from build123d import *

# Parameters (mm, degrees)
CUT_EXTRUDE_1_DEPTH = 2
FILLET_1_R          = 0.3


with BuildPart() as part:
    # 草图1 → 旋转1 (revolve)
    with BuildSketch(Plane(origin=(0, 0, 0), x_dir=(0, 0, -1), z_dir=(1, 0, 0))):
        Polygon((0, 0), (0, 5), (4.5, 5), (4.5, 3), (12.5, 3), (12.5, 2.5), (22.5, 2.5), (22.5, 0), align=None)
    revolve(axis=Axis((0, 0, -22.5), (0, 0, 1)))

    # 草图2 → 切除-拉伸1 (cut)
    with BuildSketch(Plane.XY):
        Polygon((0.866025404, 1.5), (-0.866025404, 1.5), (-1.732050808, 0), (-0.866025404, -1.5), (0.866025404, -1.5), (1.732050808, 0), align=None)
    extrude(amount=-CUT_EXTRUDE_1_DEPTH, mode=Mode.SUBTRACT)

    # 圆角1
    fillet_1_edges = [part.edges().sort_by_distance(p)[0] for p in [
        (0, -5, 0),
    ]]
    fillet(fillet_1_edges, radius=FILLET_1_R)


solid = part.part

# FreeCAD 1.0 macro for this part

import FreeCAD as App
import Part
import Sketcher
Q = App.Units.Quantity


def edges_at(feature, points):
    """Names of the edges that pass closest to the given points."""
    edges = feature.Shape.Edges
    near = lambda p: min(range(len(edges)), key=lambda i: edges[i].distToShape(Part.Vertex(*p))[0])
    return sorted({f"Edge{near(p) + 1}" for p in points})

doc = App.newDocument("Part")
body = doc.addObject("PartDesign::Body", "Body")

# Sketch on YZ plane
sketch1 = body.newObject("Sketcher::SketchObject", "Sketch")
sketch1.AttachmentSupport = (doc.getObject("YZ_Plane"), [""])
sketch1.MapMode = "FlatFace"
sketch1.addGeometry([
    Part.LineSegment(App.Vector(5, 0, 0), App.Vector(0, 0, 0)),  # 0
    Part.LineSegment(App.Vector(0, 0, 0), App.Vector(0, -22.5, 0)),  # 1
    Part.LineSegment(App.Vector(0, -22.5, 0), App.Vector(2.5, -22.5, 0)),  # 2
    Part.LineSegment(App.Vector(2.5, -22.5, 0), App.Vector(2.5, -12.5, 0)),  # 3
    Part.LineSegment(App.Vector(2.5, -12.5, 0), App.Vector(3, -12.5, 0)),  # 4
    Part.LineSegment(App.Vector(3, -12.5, 0), App.Vector(3, -4.5, 0)),  # 5
    Part.LineSegment(App.Vector(3, -4.5, 0), App.Vector(5, -4.5, 0)),  # 6
    Part.LineSegment(App.Vector(5, -4.5, 0), App.Vector(5, 0, 0)),  # 7
], False)
sketch1.addConstraint([
    Sketcher.Constraint("Coincident", 0, 2, 1, 1),
    Sketcher.Constraint("Coincident", 1, 2, 2, 1),
    Sketcher.Constraint("Coincident", 2, 2, 3, 1),
    Sketcher.Constraint("Coincident", 3, 2, 4, 1),
    Sketcher.Constraint("Coincident", 4, 2, 5, 1),
    Sketcher.Constraint("Coincident", 5, 2, 6, 1),
    Sketcher.Constraint("Coincident", 6, 2, 7, 1),
    Sketcher.Constraint("Coincident", 7, 2, 0, 1),
    Sketcher.Constraint("Horizontal", 0),
    Sketcher.Constraint("Vertical", 1),
    Sketcher.Constraint("Horizontal", 2),
    Sketcher.Constraint("Vertical", 3),
    Sketcher.Constraint("Horizontal", 4),
    Sketcher.Constraint("Vertical", 5),
    Sketcher.Constraint("Horizontal", 6),
    Sketcher.Constraint("Vertical", 7),
    Sketcher.Constraint("Coincident", 0, 2, -1, 1),
    Sketcher.Constraint("DistanceX", 0, 2, 0, 1, 5.0),
    Sketcher.Constraint("DistanceX", 6, 1, 6, 2, 2.0),
    Sketcher.Constraint("DistanceY", 3, 1, 3, 2, 10.0),
    Sketcher.Constraint("DistanceY", 5, 1, 5, 2, 8.0),
    Sketcher.Constraint("DistanceX", 2, 1, 2, 2, 2.5),
    Sketcher.Constraint("DistanceY", 1, 2, 1, 1, 22.5),
])
revolution = body.newObject("PartDesign::Revolution", "Revolution")
revolution.Profile = sketch1
revolution.ReferenceAxis = (sketch1, ["V_Axis"])
revolution.Angle = 360

# Sketch on XY plane
sketch2 = body.newObject("Sketcher::SketchObject", "Sketch001")
sketch2.AttachmentSupport = (doc.getObject("XY_Plane"), [""])
sketch2.MapMode = "FlatFace"
sketch2.addGeometry([
    Part.LineSegment(App.Vector(0.9, 1.5, 0), App.Vector(-0.9, 1.5, 0)),  # 0
    Part.LineSegment(App.Vector(-0.9, 1.5, 0), App.Vector(-1.7, 0, 0)),  # 1
    Part.LineSegment(App.Vector(-1.7, 0, 0), App.Vector(-0.9, -1.5, 0)),  # 2
    Part.LineSegment(App.Vector(-0.9, -1.5, 0), App.Vector(0.9, -1.5, 0)),  # 3
    Part.LineSegment(App.Vector(0.9, -1.5, 0), App.Vector(1.7, 0, 0)),  # 4
    Part.LineSegment(App.Vector(1.7, 0, 0), App.Vector(0.9, 1.5, 0)),  # 5
], False)
sketch2.addConstraint([
    Sketcher.Constraint("Coincident", 0, 2, 1, 1),
    Sketcher.Constraint("Coincident", 1, 2, 2, 1),
    Sketcher.Constraint("Coincident", 2, 2, 3, 1),
    Sketcher.Constraint("Coincident", 3, 2, 4, 1),
    Sketcher.Constraint("Coincident", 4, 2, 5, 1),
    Sketcher.Constraint("Coincident", 5, 2, 0, 1),
    Sketcher.Constraint("Horizontal", 0),
    Sketcher.Constraint("Horizontal", 3),
    Sketcher.Constraint("Symmetric", 0, 2, 3, 2, -1, 1),
    Sketcher.Constraint("Symmetric", 1, 2, 4, 2, -1, 1),
    Sketcher.Constraint("PointOnObject", 1, 2, -1),
    Sketcher.Constraint("Parallel", 2, 5),
    Sketcher.Constraint("Vertical", 0, 2, 2, 2),
    Sketcher.Constraint("Angle", 1, Q("-120 deg")),
    Sketcher.Constraint("DistanceY", 2, 2, 0, 2, 3.0),
    Sketcher.Constraint("DistanceX", 0, 2, 0, 1, 1.732051),
])
pocket1 = body.newObject("PartDesign::Pocket", "Pocket")
pocket1.Profile = sketch2
pocket1.Length = 2
doc.recompute()

fillet = body.newObject("PartDesign::Fillet", "Fillet")
fillet.Base = (pocket1, edges_at(pocket1, [(0, -5, 0)]))
fillet.Radius = 0.3

doc.recompute()
